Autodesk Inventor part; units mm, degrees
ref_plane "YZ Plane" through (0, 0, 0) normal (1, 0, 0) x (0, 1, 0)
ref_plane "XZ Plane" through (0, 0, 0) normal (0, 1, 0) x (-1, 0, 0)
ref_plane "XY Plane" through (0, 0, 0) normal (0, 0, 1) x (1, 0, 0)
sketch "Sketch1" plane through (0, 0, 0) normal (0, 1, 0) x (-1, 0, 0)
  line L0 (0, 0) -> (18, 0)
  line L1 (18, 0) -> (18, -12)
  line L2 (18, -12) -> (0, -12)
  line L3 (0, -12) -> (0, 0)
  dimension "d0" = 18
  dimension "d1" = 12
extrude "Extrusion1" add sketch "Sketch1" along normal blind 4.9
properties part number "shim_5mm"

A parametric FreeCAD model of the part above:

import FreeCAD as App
import Part
import Sketcher
from FreeCAD import Vector
Q = App.Units.Quantity

doc = App.newDocument("Part")
body = doc.addObject("PartDesign::Body", "Body")

# Sketch on XZ plane
sketch1 = body.newObject("Sketcher::SketchObject", "Sketch")
sketch1.AttachmentSupport = (doc.getObject("XZ_Plane"), [""])
sketch1.MapMode = "FlatFace"
sketch1.addGeometry([
    Part.LineSegment(Vector(-18, 0, 0), Vector(0, 0, 0)),
    Part.LineSegment(Vector(0, 0, 0), Vector(0, -12, 0)),
    Part.LineSegment(Vector(0, -12, 0), Vector(-18, -12, 0)),
    Part.LineSegment(Vector(-18, -12, 0), Vector(-18, 0, 0)),
], False)
sketch1.addConstraint([
    Sketcher.Constraint("Coincident", 0, 2, 1, 1),
    Sketcher.Constraint("Coincident", 1, 2, 2, 1),
    Sketcher.Constraint("Coincident", 2, 2, 3, 1),
    Sketcher.Constraint("Coincident", 3, 2, 0, 1),
    Sketcher.Constraint("Horizontal", 0),
    Sketcher.Constraint("Vertical", 1),
    Sketcher.Constraint("Horizontal", 2),
    Sketcher.Constraint("Vertical", 3),
    Sketcher.Constraint("Coincident", 0, 2, -1, 1),
    Sketcher.Constraint("DistanceX", 0, 1, 0, 2, Q("18 mm")),
    Sketcher.Constraint("DistanceY", 1, 2, 1, 1, Q("12 mm")),
])
pad1 = body.newObject("PartDesign::Pad", "Pad")
pad1.Profile = sketch1
pad1.Length = 4.9
pad1.Reversed = True

doc.recompute()
